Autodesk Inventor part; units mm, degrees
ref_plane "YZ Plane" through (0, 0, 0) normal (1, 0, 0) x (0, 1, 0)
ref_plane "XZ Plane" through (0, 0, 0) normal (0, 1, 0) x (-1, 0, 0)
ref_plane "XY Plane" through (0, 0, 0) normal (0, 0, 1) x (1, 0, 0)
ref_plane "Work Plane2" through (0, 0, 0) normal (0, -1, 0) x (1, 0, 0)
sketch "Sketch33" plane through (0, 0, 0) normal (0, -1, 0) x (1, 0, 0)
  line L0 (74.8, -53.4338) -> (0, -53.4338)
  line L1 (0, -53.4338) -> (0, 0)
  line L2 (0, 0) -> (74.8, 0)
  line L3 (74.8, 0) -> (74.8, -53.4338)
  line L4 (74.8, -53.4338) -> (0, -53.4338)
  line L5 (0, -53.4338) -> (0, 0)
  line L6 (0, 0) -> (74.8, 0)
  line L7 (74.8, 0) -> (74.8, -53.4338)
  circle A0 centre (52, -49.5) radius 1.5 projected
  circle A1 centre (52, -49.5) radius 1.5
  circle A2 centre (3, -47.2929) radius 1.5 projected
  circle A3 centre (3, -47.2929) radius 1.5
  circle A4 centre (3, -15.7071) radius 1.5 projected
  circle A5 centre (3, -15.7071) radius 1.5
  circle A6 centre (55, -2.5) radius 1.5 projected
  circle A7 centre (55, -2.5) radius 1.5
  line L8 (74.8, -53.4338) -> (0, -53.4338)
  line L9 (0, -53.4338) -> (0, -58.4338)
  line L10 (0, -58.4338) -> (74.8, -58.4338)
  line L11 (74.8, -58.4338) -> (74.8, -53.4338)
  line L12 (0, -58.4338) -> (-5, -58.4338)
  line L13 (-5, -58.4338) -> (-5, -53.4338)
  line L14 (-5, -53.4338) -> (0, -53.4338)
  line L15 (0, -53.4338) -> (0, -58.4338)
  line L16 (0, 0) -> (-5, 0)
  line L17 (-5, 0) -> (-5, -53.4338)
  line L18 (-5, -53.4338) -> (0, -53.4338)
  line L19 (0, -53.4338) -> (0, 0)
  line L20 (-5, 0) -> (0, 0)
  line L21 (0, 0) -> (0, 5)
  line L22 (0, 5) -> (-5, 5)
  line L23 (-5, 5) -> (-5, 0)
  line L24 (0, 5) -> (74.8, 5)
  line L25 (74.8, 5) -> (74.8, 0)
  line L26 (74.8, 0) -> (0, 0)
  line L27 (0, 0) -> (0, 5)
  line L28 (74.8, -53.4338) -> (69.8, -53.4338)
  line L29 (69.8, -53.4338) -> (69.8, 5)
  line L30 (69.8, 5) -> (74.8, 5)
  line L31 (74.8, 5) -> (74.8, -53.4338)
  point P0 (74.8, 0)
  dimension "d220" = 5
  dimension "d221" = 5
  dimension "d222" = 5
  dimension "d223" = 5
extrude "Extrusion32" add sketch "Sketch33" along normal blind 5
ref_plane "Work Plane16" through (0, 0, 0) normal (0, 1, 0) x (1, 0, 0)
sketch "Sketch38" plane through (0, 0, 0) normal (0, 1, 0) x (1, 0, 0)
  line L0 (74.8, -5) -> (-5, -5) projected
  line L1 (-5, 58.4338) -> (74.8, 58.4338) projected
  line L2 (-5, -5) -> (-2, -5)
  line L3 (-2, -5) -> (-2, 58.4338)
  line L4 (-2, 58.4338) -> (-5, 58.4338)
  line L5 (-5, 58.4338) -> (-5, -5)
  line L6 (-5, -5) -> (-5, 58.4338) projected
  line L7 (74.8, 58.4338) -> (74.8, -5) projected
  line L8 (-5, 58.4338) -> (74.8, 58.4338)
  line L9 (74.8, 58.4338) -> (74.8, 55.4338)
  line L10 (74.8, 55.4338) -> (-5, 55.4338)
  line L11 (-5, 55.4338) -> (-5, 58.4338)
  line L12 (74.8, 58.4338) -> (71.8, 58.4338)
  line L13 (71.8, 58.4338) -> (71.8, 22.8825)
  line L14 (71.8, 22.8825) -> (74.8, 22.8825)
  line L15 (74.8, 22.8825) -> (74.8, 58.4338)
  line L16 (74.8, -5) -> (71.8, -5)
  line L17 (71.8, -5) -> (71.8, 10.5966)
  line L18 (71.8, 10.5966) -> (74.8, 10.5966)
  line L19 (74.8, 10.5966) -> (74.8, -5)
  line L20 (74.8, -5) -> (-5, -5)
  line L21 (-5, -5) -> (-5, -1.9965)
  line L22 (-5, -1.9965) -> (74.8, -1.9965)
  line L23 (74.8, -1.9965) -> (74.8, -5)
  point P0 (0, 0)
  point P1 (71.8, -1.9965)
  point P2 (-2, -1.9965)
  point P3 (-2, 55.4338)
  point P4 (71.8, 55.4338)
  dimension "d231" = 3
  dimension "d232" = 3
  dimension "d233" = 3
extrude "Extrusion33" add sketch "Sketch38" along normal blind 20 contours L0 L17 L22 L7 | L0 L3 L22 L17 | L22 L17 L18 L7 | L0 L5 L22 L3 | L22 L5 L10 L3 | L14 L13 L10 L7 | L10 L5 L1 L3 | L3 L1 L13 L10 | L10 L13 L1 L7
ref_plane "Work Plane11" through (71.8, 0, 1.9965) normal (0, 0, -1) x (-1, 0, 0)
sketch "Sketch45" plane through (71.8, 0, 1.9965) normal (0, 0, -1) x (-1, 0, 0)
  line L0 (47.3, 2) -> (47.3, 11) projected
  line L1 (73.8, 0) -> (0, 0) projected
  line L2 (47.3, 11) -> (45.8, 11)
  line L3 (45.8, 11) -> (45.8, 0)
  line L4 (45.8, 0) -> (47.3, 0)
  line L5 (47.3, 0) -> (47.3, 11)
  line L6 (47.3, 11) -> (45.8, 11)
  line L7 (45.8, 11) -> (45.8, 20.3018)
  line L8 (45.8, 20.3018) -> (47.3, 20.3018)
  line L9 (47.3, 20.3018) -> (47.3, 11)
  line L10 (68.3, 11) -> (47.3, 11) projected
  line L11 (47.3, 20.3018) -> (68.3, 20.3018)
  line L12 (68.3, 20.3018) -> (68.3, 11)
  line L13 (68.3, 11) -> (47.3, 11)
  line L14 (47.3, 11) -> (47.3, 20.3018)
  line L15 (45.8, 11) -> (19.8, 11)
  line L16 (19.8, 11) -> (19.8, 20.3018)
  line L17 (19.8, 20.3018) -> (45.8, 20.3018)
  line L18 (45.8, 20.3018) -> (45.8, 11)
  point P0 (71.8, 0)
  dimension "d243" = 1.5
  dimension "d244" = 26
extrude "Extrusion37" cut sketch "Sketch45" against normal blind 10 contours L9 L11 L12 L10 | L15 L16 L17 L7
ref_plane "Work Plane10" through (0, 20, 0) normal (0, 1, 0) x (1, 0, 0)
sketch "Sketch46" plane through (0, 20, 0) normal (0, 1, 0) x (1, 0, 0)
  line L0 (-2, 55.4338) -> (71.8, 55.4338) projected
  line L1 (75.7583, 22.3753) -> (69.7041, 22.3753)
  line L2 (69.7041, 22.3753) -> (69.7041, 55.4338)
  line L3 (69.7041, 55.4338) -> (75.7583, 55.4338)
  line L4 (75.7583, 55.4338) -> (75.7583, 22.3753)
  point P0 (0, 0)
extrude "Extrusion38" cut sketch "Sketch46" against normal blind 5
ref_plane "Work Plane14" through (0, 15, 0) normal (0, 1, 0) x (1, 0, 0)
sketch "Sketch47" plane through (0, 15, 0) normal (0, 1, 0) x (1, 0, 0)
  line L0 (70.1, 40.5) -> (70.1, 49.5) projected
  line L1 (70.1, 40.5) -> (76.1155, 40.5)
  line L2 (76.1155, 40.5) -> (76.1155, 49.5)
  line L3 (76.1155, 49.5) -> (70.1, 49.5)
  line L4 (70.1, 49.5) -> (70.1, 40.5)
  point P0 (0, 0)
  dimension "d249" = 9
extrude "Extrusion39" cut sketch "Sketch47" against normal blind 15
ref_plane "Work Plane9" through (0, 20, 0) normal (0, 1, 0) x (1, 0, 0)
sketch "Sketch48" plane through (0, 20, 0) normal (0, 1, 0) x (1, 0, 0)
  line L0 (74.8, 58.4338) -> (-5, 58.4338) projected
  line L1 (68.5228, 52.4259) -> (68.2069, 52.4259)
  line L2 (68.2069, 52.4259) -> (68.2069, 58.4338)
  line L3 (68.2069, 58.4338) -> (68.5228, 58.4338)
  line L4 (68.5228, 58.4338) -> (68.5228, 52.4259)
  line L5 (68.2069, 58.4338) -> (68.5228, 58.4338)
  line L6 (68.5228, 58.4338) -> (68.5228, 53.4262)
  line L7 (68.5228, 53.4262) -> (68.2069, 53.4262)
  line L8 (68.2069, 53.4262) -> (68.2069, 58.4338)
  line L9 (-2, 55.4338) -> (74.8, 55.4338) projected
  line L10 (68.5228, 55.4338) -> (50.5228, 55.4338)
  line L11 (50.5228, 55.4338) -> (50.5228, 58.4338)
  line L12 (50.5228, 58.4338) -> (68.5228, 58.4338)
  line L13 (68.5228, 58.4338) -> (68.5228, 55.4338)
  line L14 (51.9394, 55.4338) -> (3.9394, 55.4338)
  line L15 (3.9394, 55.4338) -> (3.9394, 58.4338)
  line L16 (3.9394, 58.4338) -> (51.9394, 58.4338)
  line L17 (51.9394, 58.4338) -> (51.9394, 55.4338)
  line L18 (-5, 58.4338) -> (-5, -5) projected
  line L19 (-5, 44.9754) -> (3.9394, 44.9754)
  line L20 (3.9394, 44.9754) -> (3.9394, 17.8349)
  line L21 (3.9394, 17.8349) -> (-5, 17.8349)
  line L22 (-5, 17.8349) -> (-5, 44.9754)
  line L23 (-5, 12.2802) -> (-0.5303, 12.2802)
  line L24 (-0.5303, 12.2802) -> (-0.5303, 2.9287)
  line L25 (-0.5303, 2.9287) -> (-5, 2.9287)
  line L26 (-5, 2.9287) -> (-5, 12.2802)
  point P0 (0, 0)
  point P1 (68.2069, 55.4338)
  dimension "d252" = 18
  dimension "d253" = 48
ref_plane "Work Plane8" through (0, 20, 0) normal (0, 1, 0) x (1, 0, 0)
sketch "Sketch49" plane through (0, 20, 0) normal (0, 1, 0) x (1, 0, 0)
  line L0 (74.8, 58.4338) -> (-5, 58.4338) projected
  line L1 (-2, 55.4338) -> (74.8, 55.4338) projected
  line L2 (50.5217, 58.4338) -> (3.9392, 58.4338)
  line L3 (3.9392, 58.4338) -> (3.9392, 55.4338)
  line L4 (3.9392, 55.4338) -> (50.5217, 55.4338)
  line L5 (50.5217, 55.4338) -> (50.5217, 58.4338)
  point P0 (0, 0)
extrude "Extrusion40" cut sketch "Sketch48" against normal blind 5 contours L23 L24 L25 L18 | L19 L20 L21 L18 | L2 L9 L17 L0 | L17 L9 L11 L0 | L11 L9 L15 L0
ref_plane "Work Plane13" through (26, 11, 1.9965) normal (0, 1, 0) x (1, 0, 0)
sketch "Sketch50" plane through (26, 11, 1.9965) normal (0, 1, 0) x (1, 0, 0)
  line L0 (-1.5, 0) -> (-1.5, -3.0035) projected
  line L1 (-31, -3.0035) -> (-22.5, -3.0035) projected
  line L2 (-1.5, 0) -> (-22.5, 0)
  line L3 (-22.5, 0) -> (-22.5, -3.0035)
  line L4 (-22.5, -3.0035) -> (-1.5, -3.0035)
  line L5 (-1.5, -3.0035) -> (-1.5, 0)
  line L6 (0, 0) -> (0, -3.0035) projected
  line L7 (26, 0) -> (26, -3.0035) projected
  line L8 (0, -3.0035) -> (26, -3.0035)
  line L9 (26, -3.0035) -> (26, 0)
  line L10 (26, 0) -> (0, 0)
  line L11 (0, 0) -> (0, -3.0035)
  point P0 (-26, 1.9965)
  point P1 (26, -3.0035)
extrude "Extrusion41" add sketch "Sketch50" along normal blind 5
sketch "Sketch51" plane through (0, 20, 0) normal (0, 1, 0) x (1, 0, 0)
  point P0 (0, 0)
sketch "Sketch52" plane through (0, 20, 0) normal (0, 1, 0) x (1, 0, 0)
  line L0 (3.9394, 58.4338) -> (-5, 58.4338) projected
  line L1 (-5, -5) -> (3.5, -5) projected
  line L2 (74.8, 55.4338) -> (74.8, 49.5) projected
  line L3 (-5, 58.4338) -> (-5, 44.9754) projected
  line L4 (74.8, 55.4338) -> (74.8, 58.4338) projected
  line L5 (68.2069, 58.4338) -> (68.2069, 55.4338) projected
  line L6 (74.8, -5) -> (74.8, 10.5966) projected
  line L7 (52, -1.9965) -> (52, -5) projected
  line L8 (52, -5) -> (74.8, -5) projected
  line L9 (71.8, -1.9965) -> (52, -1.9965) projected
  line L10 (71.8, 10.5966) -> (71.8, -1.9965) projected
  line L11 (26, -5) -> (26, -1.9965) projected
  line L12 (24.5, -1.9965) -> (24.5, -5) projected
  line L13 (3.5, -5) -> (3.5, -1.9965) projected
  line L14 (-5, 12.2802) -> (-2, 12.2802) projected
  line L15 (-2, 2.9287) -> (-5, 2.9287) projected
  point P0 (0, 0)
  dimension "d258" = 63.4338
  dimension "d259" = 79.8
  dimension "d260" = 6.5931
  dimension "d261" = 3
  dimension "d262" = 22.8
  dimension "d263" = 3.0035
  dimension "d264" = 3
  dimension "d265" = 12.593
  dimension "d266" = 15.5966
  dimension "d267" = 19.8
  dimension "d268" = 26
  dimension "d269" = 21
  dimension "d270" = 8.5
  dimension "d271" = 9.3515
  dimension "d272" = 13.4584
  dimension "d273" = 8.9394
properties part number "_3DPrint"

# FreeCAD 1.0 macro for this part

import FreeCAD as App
import Part
import Sketcher


def add_polygon(sketch, points):
    """Adds a closed chain of lines whose ends are joined by coincident constraints."""
    first, n = sketch.GeometryCount, len(points)
    for a, b in zip(points, points[1:] + points[:1]):
        sketch.addGeometry(Part.LineSegment(App.Vector(*a, 0), App.Vector(*b, 0)), False)
    for i in range(n):
        sketch.addConstraint(Sketcher.Constraint("Coincident", first + i, 2, first + (i + 1) % n, 1))

doc = App.newDocument("Part")
body = doc.addObject("PartDesign::Body", "Body")

# Sketch on XZ plane
sketch1 = body.newObject("Sketcher::SketchObject", "Sketch")
sketch1.AttachmentSupport = (doc.getObject("XZ_Plane"), [""])
sketch1.MapMode = "FlatFace"
add_polygon(sketch1, [(74.8, -58.4), (74.8, 5), (-5, 5), (-5, -58.4)])  # lines 0-3
sketch1.addGeometry(Part.Circle(App.Vector(55, -2.5, 0), App.Vector(0, 0, 1), 1.5), False)  # 4
sketch1.addGeometry(Part.Circle(App.Vector(3, -47.3, 0), App.Vector(0, 0, 1), 1.5), False)  # 5
sketch1.addGeometry(Part.Circle(App.Vector(52, -49.5, 0), App.Vector(0, 0, 1), 1.5), False)  # 6
sketch1.addGeometry(Part.Circle(App.Vector(3, -15.7, 0), App.Vector(0, 0, 1), 1.5), False)  # 7
sketch1.addConstraint([
    Sketcher.Constraint("Vertical", 0),
    Sketcher.Constraint("Horizontal", 1),
    Sketcher.Constraint("Vertical", 2),
    Sketcher.Constraint("Horizontal", 3),
    Sketcher.Constraint("Equal", 4, 5),
    Sketcher.Constraint("Equal", 5, 6),
    Sketcher.Constraint("Equal", 6, 7),
    Sketcher.Constraint("Vertical", 5, 3, 7, 3),
    Sketcher.Constraint("Diameter", 4, 3.0),
    Sketcher.Constraint("DistanceY", -1, 1, 0, 2, 5.0),
    Sketcher.Constraint("DistanceX", 1, 2, -1, 1, 5.0),
    Sketcher.Constraint("DistanceX", 1, 2, 1, 1, 79.8),
    Sketcher.Constraint("DistanceX", -1, 1, 4, 3, 55.0),
    Sketcher.Constraint("DistanceX", -1, 1, 5, 3, 3.0),
    Sketcher.Constraint("DistanceX", -1, 1, 6, 3, 52.0),
    Sketcher.Constraint("DistanceY", 6, 3, 4, 3, 47.0),
    Sketcher.Constraint("DistanceY", 4, 3, -1, 1, 2.5),
    Sketcher.Constraint("DistanceY", 0, 1, 0, 2, 63.4338),
    Sketcher.Constraint("DistanceY", 5, 3, -1, 1, 47.293),
    Sketcher.Constraint("DistanceY", 7, 3, -1, 1, 15.707),
])
pad1 = body.newObject("PartDesign::Pad", "Pad")
pad1.Profile = sketch1
pad1.Length = 5

# Sketch on XZ plane
sketch2 = body.newObject("Sketcher::SketchObject", "Sketch001")
sketch2.AttachmentSupport = (doc.getObject("XZ_Plane"), [""])
sketch2.MapMode = "FlatFace"
add_polygon(sketch2, [(74.8, 5), (74.8, -10.6), (71.8, -10.6), (71.8, 2), (-2, 2), (-2, -55.4), (71.8, -55.4), (71.8, -22.9), (74.8, -22.9), (74.8, -58.4), (-5, -58.4), (-5, 5)])  # lines 0-11
sketch2.addConstraint([
    Sketcher.Constraint("Vertical", 0),
    Sketcher.Constraint("Horizontal", 1),
    Sketcher.Constraint("Vertical", 2),
    Sketcher.Constraint("Horizontal", 3),
    Sketcher.Constraint("Vertical", 4),
    Sketcher.Constraint("Horizontal", 5),
    Sketcher.Constraint("Vertical", 6),
    Sketcher.Constraint("Horizontal", 7),
    Sketcher.Constraint("Vertical", 8),
    Sketcher.Constraint("Horizontal", 9),
    Sketcher.Constraint("Vertical", 10),
    Sketcher.Constraint("Horizontal", 11),
    Sketcher.Constraint("Vertical", 2, 2, 5, 2),
    Sketcher.Constraint("Vertical", 0, 2, 7, 2),
    Sketcher.Constraint("DistanceX", 1, 2, 1, 1, 3.0),
    Sketcher.Constraint("DistanceY", 8, 2, 5, 2, 3.0),
    Sketcher.Constraint("DistanceX", 9, 2, 4, 2, 3.0),
    Sketcher.Constraint("DistanceX", 3, 2, 3, 1, 73.8),
    Sketcher.Constraint("DistanceX", 3, 2, -1, 1, 2.0),
    Sketcher.Constraint("DistanceY", -1, 1, 10, 2, 5.0),
    Sketcher.Constraint("DistanceY", 2, 1, 2, 2, 12.593),
    Sketcher.Constraint("DistanceY", 0, 2, 0, 1, 15.5966),
    Sketcher.Constraint("DistanceY", 4, 2, 4, 1, 57.4303),
    Sketcher.Constraint("DistanceY", 6, 1, 6, 2, 32.5513),
])
pad2 = body.newObject("PartDesign::Pad", "Pad001")
pad2.Profile = sketch2
pad2.Length = 20
pad2.Reversed = True

# Sketch on XY plane
sketch3 = body.newObject("Sketcher::SketchObject", "Sketch002")
sketch3.AttachmentSupport = (doc.getObject("XY_Plane"), [""])
sketch3.MapMode = "FlatFace"
sketch3.AttachmentOffset = App.Placement(App.Vector(0, 0, 1.9965), App.Rotation())
add_polygon(sketch3, [(24, 20), (24, 11), (4, 11), (4, 20)])  # lines 0-3
add_polygon(sketch3, [(52, 11), (26, 11), (26, 20), (52, 20)])  # lines 4-7
sketch3.addConstraint([
    Sketcher.Constraint("Vertical", 0),
    Sketcher.Constraint("Horizontal", 1),
    Sketcher.Constraint("Vertical", 2),
    Sketcher.Constraint("Horizontal", 3),
    Sketcher.Constraint("Horizontal", 4),
    Sketcher.Constraint("Vertical", 5),
    Sketcher.Constraint("Horizontal", 6),
    Sketcher.Constraint("Vertical", 7),
    Sketcher.Constraint("Horizontal", 1, 2, 4, 2),
    Sketcher.Constraint("Horizontal", 3, 2, 5, 2),
    Sketcher.Constraint("DistanceX", 4, 2, 4, 1, 26.0),
    Sketcher.Constraint("DistanceX", -1, 1, 4, 2, 26.0),
    Sketcher.Constraint("DistanceX", 0, 2, 4, 2, 1.5),
    Sketcher.Constraint("DistanceX", 1, 2, 1, 1, 21.0),
    Sketcher.Constraint("DistanceY", -1, 1, 0, 2, 11.0),
    Sketcher.Constraint("DistanceY", 0, 2, 0, 1, 9.3018),
])
pocket1 = body.newObject("PartDesign::Pocket", "Pocket")
pocket1.Profile = sketch3
pocket1.Length = 10
pocket1.Reversed = True

# Sketch on XZ plane
sketch4 = body.newObject("Sketcher::SketchObject", "Sketch003")
sketch4.AttachmentSupport = (doc.getObject("XZ_Plane"), [""])
sketch4.MapMode = "FlatFace"
sketch4.AttachmentOffset = App.Placement(App.Vector(0, 0, -20), App.Rotation())
add_polygon(sketch4, [(76, -55), (70, -55), (70, -22), (76, -22)])  # lines 0-3
sketch4.addConstraint([
    Sketcher.Constraint("Horizontal", 0),
    Sketcher.Constraint("Vertical", 1),
    Sketcher.Constraint("Horizontal", 2),
    Sketcher.Constraint("Vertical", 3),
    Sketcher.Constraint("DistanceX", 0, 2, 0, 1, 6.0542),
    Sketcher.Constraint("DistanceY", 1, 1, 1, 2, 33.0585),
    Sketcher.Constraint("DistanceX", -1, 1, 0, 2, 69.704),
    Sketcher.Constraint("DistanceY", 0, 2, -1, 1, 55.4338),
])
pocket2 = body.newObject("PartDesign::Pocket", "Pocket001")
pocket2.Profile = sketch4
pocket2.Length = 5
pocket2.Reversed = True

# Sketch on XZ plane
sketch5 = body.newObject("Sketcher::SketchObject", "Sketch004")
sketch5.AttachmentSupport = (doc.getObject("XZ_Plane"), [""])
sketch5.MapMode = "FlatFace"
sketch5.AttachmentOffset = App.Placement(App.Vector(0, 0, -15), App.Rotation())
add_polygon(sketch5, [(70, -50), (70, -40), (76, -40), (76, -50)])  # lines 0-3
sketch5.addConstraint([
    Sketcher.Constraint("Vertical", 0),
    Sketcher.Constraint("Horizontal", 1),
    Sketcher.Constraint("Vertical", 2),
    Sketcher.Constraint("Horizontal", 3),
    Sketcher.Constraint("DistanceY", 0, 1, 0, 2, 9.0),
    Sketcher.Constraint("DistanceX", -1, 1, 0, 2, 70.1),
    Sketcher.Constraint("DistanceY", 0, 2, -1, 1, 40.5),
    Sketcher.Constraint("DistanceX", 1, 1, 1, 2, 6.0155),
])
pocket3 = body.newObject("PartDesign::Pocket", "Pocket002")
pocket3.Profile = sketch5
pocket3.Length = 15
pocket3.Reversed = True

# Sketch on XZ plane
sketch6 = body.newObject("Sketcher::SketchObject", "Sketch005")
sketch6.AttachmentSupport = (doc.getObject("XZ_Plane"), [""])
sketch6.MapMode = "FlatFace"
sketch6.AttachmentOffset = App.Placement(App.Vector(0, 0, -20), App.Rotation())
add_polygon(sketch6, [(-0.5, -12.3), (-5, -12.3), (-5, -2.9), (-0.5, -2.9)])  # lines 0-3
add_polygon(sketch6, [(3.9, -45), (-5, -45), (-5, -17.8), (3.9, -17.8)])  # lines 4-7
add_polygon(sketch6, [(68.2, -55.4), (68.2, -58.4), (3.9, -58.4), (3.9, -55.4)])  # lines 8-11
sketch6.addConstraint([
    Sketcher.Constraint("Horizontal", 0),
    Sketcher.Constraint("Vertical", 1),
    Sketcher.Constraint("Horizontal", 2),
    Sketcher.Constraint("Vertical", 3),
    Sketcher.Constraint("Horizontal", 4),
    Sketcher.Constraint("Vertical", 5),
    Sketcher.Constraint("Horizontal", 6),
    Sketcher.Constraint("Vertical", 7),
    Sketcher.Constraint("Vertical", 8),
    Sketcher.Constraint("Horizontal", 9),
    Sketcher.Constraint("Vertical", 10),
    Sketcher.Constraint("Horizontal", 11),
    Sketcher.Constraint("Vertical", 1, 2, 4, 2),
    Sketcher.Constraint("Vertical", 7, 2, 9, 2),
    Sketcher.Constraint("DistanceY", 8, 2, 8, 1, 3.0),
    Sketcher.Constraint("DistanceX", 0, 2, -1, 1, 5.0),
    Sketcher.Constraint("DistanceX", 0, 2, 0, 1, 4.4697),
    Sketcher.Constraint("DistanceX", 4, 2, 4, 1, 8.9394),
    Sketcher.Constraint("DistanceX", 9, 2, 9, 1, 64.2675),
    Sketcher.Constraint("DistanceY", 1, 1, 1, 2, 9.3515),
    Sketcher.Constraint("DistanceY", 5, 1, 5, 2, 27.1405),
    Sketcher.Constraint("DistanceY", 5, 2, -1, 1, 17.835),
    Sketcher.Constraint("DistanceY", 8, 2, 6, 2, 40.599),
    Sketcher.Constraint("DistanceY", 0, 2, -1, 1, 12.2802),
])
pocket4 = body.newObject("PartDesign::Pocket", "Pocket003")
pocket4.Profile = sketch6
pocket4.Length = 5
pocket4.Reversed = True

# Sketch on XZ plane
sketch7 = body.newObject("Sketcher::SketchObject", "Sketch006")
sketch7.AttachmentSupport = (doc.getObject("XZ_Plane"), [""])
sketch7.MapMode = "FlatFace"
sketch7.AttachmentOffset = App.Placement(App.Vector(0, 0, -11), App.Rotation())
add_polygon(sketch7, [(24.5, 5), (24.5, 2), (3.5, 2), (3.5, 5)])  # lines 0-3
add_polygon(sketch7, [(52, 2), (26, 2), (26, 5), (52, 5)])  # lines 4-7
sketch7.addConstraint([
    Sketcher.Constraint("Vertical", 0),
    Sketcher.Constraint("Horizontal", 1),
    Sketcher.Constraint("Vertical", 2),
    Sketcher.Constraint("Horizontal", 3),
    Sketcher.Constraint("Horizontal", 4),
    Sketcher.Constraint("Vertical", 5),
    Sketcher.Constraint("Horizontal", 6),
    Sketcher.Constraint("Vertical", 7),
    Sketcher.Constraint("Horizontal", 1, 2, 4, 2),
    Sketcher.Constraint("Horizontal", 3, 2, 5, 2),
    Sketcher.Constraint("DistanceX", 1, 2, 1, 1, 21.0),
    Sketcher.Constraint("DistanceX", 4, 2, 4, 1, 26.0),
    Sketcher.Constraint("DistanceY", -1, 1, 2, 2, 5.0),
    Sketcher.Constraint("DistanceX", -1, 1, 4, 2, 26.0),
    Sketcher.Constraint("DistanceX", -1, 1, 0, 2, 24.5),
    Sketcher.Constraint("DistanceY", 0, 2, 0, 1, 3.0035),
])
pad3 = body.newObject("PartDesign::Pad", "Pad002")
pad3.Profile = sketch7
pad3.Length = 5
pad3.Reversed = True

doc.recompute()
